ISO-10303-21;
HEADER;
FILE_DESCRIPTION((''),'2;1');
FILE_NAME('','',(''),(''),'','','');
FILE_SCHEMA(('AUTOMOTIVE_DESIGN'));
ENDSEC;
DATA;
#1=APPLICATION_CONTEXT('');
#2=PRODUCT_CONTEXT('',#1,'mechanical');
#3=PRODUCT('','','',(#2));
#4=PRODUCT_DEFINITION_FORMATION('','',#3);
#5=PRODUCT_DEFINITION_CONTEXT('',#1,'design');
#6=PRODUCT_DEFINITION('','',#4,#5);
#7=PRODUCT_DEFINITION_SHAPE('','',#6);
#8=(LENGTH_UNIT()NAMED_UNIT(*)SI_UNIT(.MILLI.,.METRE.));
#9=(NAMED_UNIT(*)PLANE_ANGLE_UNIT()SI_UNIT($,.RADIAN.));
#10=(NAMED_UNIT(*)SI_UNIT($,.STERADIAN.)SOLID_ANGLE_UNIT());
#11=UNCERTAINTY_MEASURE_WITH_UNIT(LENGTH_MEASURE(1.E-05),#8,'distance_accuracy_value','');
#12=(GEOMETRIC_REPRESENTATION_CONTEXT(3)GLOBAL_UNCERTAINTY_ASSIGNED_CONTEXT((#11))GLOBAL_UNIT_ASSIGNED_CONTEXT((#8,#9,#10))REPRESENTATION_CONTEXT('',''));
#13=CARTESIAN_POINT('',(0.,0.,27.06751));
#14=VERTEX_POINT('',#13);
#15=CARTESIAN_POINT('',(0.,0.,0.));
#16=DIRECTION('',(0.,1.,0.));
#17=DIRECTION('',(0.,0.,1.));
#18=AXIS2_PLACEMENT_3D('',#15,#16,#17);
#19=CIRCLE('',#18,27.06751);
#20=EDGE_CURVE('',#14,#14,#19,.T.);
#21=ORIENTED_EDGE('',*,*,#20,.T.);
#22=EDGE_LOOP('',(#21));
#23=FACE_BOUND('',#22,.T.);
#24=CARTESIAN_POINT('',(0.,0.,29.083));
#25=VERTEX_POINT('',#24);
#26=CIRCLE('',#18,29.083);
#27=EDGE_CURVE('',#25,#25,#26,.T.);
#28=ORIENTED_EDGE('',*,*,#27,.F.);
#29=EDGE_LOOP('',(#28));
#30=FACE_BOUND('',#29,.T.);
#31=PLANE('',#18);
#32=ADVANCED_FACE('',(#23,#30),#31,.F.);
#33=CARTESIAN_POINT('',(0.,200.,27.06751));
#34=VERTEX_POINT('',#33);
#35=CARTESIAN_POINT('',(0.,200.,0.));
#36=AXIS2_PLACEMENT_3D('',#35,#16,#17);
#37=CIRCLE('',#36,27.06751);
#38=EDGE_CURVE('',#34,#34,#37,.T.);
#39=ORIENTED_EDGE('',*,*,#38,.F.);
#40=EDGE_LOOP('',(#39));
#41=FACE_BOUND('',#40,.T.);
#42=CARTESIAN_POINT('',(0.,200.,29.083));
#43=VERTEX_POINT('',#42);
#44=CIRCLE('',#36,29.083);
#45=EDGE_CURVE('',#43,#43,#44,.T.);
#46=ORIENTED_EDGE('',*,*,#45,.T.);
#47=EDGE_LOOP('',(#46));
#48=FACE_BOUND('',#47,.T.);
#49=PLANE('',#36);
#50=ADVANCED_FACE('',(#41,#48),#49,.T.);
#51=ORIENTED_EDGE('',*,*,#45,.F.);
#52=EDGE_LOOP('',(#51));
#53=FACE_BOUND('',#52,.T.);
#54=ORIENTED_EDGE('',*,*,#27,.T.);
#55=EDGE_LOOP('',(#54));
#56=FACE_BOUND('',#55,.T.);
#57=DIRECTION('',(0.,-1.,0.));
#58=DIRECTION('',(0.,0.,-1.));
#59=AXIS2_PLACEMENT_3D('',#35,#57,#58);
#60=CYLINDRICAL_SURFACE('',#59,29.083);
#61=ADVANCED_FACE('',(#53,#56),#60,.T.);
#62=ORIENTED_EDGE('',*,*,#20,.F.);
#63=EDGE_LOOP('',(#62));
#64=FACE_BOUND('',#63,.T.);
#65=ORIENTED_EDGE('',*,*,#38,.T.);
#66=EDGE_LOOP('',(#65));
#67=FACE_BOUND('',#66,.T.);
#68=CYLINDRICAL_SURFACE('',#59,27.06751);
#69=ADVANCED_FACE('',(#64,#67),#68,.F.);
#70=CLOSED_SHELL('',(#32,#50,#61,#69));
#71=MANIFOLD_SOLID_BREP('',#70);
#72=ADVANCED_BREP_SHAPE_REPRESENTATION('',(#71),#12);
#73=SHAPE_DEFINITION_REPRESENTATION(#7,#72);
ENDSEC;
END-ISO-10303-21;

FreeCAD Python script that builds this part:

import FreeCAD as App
import Part
import Sketcher

doc = App.newDocument("Part")
body = doc.addObject("PartDesign::Body", "Body")

# Sketch on XZ plane
sketch1 = body.newObject("Sketcher::SketchObject", "Sketch")
sketch1.AttachmentSupport = (doc.getObject("XZ_Plane"), [""])
sketch1.MapMode = "FlatFace"
sketch1.addGeometry([
    Part.Circle(App.Vector(0, 0, 0), App.Vector(0, 0, 1), 29.083),
    Part.Circle(App.Vector(0, 0, 0), App.Vector(0, 0, 1), 27.06751),
], False)
sketch1.addConstraint([
    Sketcher.Constraint("Coincident", 0, 3, -1, 1),
    Sketcher.Constraint("Coincident", 1, 3, -1, 1),
    Sketcher.Constraint("Diameter", 0, 58.166),
    Sketcher.Constraint("Diameter", 1, 54.13502),
])
pad1 = body.newObject("PartDesign::Pad", "Pad")
pad1.Profile = sketch1
pad1.Length = 200
pad1.Reversed = True

doc.recompute()
